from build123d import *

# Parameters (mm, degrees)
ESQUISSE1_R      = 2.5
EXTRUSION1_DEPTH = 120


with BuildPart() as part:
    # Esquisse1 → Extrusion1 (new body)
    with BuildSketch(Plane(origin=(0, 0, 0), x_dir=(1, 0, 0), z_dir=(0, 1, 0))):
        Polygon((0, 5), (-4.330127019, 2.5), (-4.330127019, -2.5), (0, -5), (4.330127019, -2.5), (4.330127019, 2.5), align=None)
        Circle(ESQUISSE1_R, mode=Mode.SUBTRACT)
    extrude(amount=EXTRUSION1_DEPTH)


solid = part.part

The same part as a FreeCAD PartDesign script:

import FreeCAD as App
import Part
import Sketcher
from FreeCAD import Vector
Q = App.Units.Quantity

doc = App.newDocument("Part")
body = doc.addObject("PartDesign::Body", "Body")

sketch1 = doc.addObject("Sketcher::SketchObject", "Sketch")
body.addObject(sketch1)
sketch1.AttachmentSupport = (doc.XZ_Plane, [""])
sketch1.MapMode = "FlatFace"
sketch1.addGeometry(Part.LineSegment(Vector(0, -5, 0), Vector(-4.330127, -2.5, 0)), False)
sketch1.addGeometry(Part.LineSegment(Vector(-4.330127, -2.5, 0), Vector(-4.330127, 2.5, 0)), False)
sketch1.addGeometry(Part.LineSegment(Vector(-4.330127, 2.5, 0), Vector(0, 5, 0)), False)
sketch1.addGeometry(Part.LineSegment(Vector(0, 5, 0), Vector(4.330127, 2.5, 0)), False)
sketch1.addGeometry(Part.LineSegment(Vector(4.330127, 2.5, 0), Vector(4.330127, -2.5, 0)), False)
sketch1.addGeometry(Part.LineSegment(Vector(4.330127, -2.5, 0), Vector(0, -5, 0)), False)
sketch1.addGeometry(Part.Circle(Vector(0, 0, 0), Vector(0, 0, 1), 2.5), False)
sketch1.addConstraint(Sketcher.Constraint("Coincident", 0, 2, 1, 1))
sketch1.addConstraint(Sketcher.Constraint("Coincident", 1, 2, 2, 1))
sketch1.addConstraint(Sketcher.Constraint("Coincident", 2, 2, 3, 1))
sketch1.addConstraint(Sketcher.Constraint("Coincident", 3, 2, 4, 1))
sketch1.addConstraint(Sketcher.Constraint("Coincident", 4, 2, 5, 1))
sketch1.addConstraint(Sketcher.Constraint("Coincident", 5, 2, 0, 1))
sketch1.addConstraint(Sketcher.Constraint("Vertical", 1))
sketch1.addConstraint(Sketcher.Constraint("Vertical", 4))
sketch1.addConstraint(Sketcher.Constraint("Coincident", 6, 3, -1, 1))
sketch1.addConstraint(Sketcher.Constraint("Symmetric", 0, 2, 3, 2, -1, 1))
sketch1.addConstraint(Sketcher.Constraint("Symmetric", 2, 2, 5, 2, -1, 1))
sketch1.addConstraint(Sketcher.Constraint("PointOnObject", 2, 2, -2))
sketch1.addConstraint(Sketcher.Constraint("Parallel", 2, 5))
sketch1.addConstraint(Sketcher.Constraint("Horizontal", 1, 2, 3, 2))
sketch1.addConstraint(Sketcher.Constraint("Diameter", 6, Q("5 mm")))
sketch1.addConstraint(Sketcher.Constraint("DistanceY", 1, 1, 1, 2, Q("5 mm")))
sketch1.addConstraint(Sketcher.Constraint("Angle", 0, Q("150 deg")))
sketch1.addConstraint(Sketcher.Constraint("Distance", 0, Q("5 mm")))
pad1 = doc.addObject("PartDesign::Pad", "Pad")
body.addObject(pad1)
pad1.Profile = sketch1
pad1.Length = 120
pad1.Reversed = True

doc.recompute()
